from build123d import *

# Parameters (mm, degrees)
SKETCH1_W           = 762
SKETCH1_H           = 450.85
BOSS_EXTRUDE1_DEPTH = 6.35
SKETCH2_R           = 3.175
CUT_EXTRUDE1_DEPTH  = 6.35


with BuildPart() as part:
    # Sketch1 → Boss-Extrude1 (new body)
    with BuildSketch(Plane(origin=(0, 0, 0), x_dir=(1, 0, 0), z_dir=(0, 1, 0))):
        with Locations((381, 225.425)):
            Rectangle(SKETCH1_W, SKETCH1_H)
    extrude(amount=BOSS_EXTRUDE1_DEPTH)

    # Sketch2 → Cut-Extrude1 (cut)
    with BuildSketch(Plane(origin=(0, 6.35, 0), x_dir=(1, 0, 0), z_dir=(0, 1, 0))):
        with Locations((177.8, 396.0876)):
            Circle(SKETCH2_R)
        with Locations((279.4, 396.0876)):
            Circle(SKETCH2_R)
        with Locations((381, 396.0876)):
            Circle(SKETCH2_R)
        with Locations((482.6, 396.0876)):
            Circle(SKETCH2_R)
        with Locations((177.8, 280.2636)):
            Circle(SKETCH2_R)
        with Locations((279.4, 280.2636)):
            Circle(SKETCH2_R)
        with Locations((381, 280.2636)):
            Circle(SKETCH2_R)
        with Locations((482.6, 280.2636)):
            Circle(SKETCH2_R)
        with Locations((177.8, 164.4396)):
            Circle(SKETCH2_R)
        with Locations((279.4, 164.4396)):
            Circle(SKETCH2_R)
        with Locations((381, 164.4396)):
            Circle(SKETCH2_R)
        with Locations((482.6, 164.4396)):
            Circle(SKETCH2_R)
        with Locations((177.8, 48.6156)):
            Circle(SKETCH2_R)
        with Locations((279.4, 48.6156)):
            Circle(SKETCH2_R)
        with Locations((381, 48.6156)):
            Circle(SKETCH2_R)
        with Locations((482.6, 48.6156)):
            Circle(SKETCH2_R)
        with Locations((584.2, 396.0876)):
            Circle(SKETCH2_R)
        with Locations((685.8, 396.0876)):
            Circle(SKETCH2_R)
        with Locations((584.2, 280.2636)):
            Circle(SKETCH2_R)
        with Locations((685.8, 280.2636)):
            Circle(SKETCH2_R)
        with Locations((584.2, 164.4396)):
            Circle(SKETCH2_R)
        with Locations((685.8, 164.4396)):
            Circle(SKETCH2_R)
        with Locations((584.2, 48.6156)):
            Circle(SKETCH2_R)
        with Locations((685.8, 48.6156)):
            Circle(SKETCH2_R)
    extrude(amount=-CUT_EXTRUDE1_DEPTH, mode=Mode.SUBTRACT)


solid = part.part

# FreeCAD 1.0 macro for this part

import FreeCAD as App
import Part
import Sketcher
Q = App.Units.Quantity

doc = App.newDocument("Part")
params = doc.addObject("Spreadsheet::Sheet", "Params")
for row, (alias, value) in enumerate([
    ("sketch1_width", "30 in"),
    ("sketch1_height", "17.75 in"),
    ("pad1_length", "0.25 in"),
    ("sketch2_diameter", "0.25 in"),
    ("pocket1_length", "0.25 in"),
], start=1):
    params.set(f"A{row}", alias)
    params.set(f"B{row}", "=" + value)
    params.setAlias(f"B{row}", alias)

body = doc.addObject("PartDesign::Body", "Body")

sketch1 = doc.addObject("Sketcher::SketchObject", "Sketch")
body.addObject(sketch1)
sketch1.AttachmentSupport = (doc.XZ_Plane, [""])
sketch1.MapMode = "FlatFace"
sketch1.addGeometry([
    Part.LineSegment(App.Vector(0, -451, 0), App.Vector(0, 0, 0)),
    Part.LineSegment(App.Vector(0, 0, 0), App.Vector(762, 0, 0)),
    Part.LineSegment(App.Vector(762, 0, 0), App.Vector(762, -451, 0)),
    Part.LineSegment(App.Vector(762, -451, 0), App.Vector(0, -451, 0)),
], False)
sketch1.addConstraint([
    Sketcher.Constraint("Coincident", 0, 2, 1, 1),
    Sketcher.Constraint("Coincident", 1, 2, 2, 1),
    Sketcher.Constraint("Coincident", 2, 2, 3, 1),
    Sketcher.Constraint("Coincident", 3, 2, 0, 1),
    Sketcher.Constraint("Vertical", 0),
    Sketcher.Constraint("Horizontal", 1),
    Sketcher.Constraint("Vertical", 2),
    Sketcher.Constraint("Horizontal", 3),
    Sketcher.Constraint("Coincident", 0, 2, -1, 1),
    Sketcher.Constraint("DistanceX", 1, 1, 1, 2, Q("30 in")),
    Sketcher.Constraint("DistanceY", 0, 1, 0, 2, Q("17.75 in")),
])
sketch1.setExpression("Constraints[9]", "Params.sketch1_width")
sketch1.setExpression("Constraints[10]", "Params.sketch1_height")
pad1 = doc.addObject("PartDesign::Pad", "Pad")
body.addObject(pad1)
pad1.Profile = sketch1
pad1.setExpression("Length", "Params.pad1_length")
pad1.Reversed = True

sketch2 = doc.addObject("Sketcher::SketchObject", "Sketch001")
body.addObject(sketch2)
sketch2.AttachmentSupport = (doc.XZ_Plane, [""])
sketch2.MapMode = "FlatFace"
sketch2.AttachmentOffset = App.Placement(App.Vector(0, 0, -0.25 * 25.4), App.Rotation())
sketch2.addGeometry([
    Part.Circle(App.Vector(177.8, -396.1, 0), App.Vector(0, 0, 1), 3.2),
    Part.Circle(App.Vector(279.4, -396.1, 0), App.Vector(0, 0, 1), 3.2),
    Part.Circle(App.Vector(381, -396.1, 0), App.Vector(0, 0, 1), 3.2),
    Part.Circle(App.Vector(482.6, -396.1, 0), App.Vector(0, 0, 1), 3.2),
    Part.Circle(App.Vector(177.8, -280.3, 0), App.Vector(0, 0, 1), 3.2),
    Part.Circle(App.Vector(279.4, -280.3, 0), App.Vector(0, 0, 1), 3.2),
    Part.Circle(App.Vector(381, -280.3, 0), App.Vector(0, 0, 1), 3.2),
    Part.Circle(App.Vector(482.6, -280.3, 0), App.Vector(0, 0, 1), 3.2),
    Part.Circle(App.Vector(177.8, -164.4, 0), App.Vector(0, 0, 1), 3.2),
    Part.Circle(App.Vector(279.4, -164.4, 0), App.Vector(0, 0, 1), 3.2),
    Part.Circle(App.Vector(381, -164.4, 0), App.Vector(0, 0, 1), 3.2),
    Part.Circle(App.Vector(482.6, -164.4, 0), App.Vector(0, 0, 1), 3.2),
    Part.Circle(App.Vector(177.8, -48.6, 0), App.Vector(0, 0, 1), 3.2),
    Part.Circle(App.Vector(279.4, -48.6, 0), App.Vector(0, 0, 1), 3.2),
    Part.Circle(App.Vector(381, -48.6, 0), App.Vector(0, 0, 1), 3.2),
    Part.Circle(App.Vector(482.6, -48.6, 0), App.Vector(0, 0, 1), 3.2),
    Part.Circle(App.Vector(584.2, -396.1, 0), App.Vector(0, 0, 1), 3.2),
    Part.Circle(App.Vector(685.8, -396.1, 0), App.Vector(0, 0, 1), 3.2),
    Part.Circle(App.Vector(584.2, -280.3, 0), App.Vector(0, 0, 1), 3.2),
    Part.Circle(App.Vector(685.8, -280.3, 0), App.Vector(0, 0, 1), 3.2),
    Part.Circle(App.Vector(584.2, -164.4, 0), App.Vector(0, 0, 1), 3.2),
    Part.Circle(App.Vector(685.8, -164.4, 0), App.Vector(0, 0, 1), 3.2),
    Part.Circle(App.Vector(584.2, -48.6, 0), App.Vector(0, 0, 1), 3.2),
    Part.Circle(App.Vector(685.8, -48.6, 0), App.Vector(0, 0, 1), 3.2),
], False)
sketch2.addConstraint([
    Sketcher.Constraint("Equal", 0, 1),
    Sketcher.Constraint("Equal", 1, 2),
    Sketcher.Constraint("Equal", 2, 3),
    Sketcher.Constraint("Equal", 3, 4),
    Sketcher.Constraint("Equal", 4, 5),
    Sketcher.Constraint("Equal", 5, 6),
    Sketcher.Constraint("Equal", 6, 7),
    Sketcher.Constraint("Equal", 7, 8),
    Sketcher.Constraint("Equal", 8, 9),
    Sketcher.Constraint("Equal", 9, 10),
    Sketcher.Constraint("Equal", 10, 11),
    Sketcher.Constraint("Equal", 11, 12),
    Sketcher.Constraint("Equal", 12, 13),
    Sketcher.Constraint("Equal", 13, 14),
    Sketcher.Constraint("Equal", 14, 15),
    Sketcher.Constraint("Equal", 15, 16),
    Sketcher.Constraint("Equal", 16, 17),
    Sketcher.Constraint("Equal", 17, 18),
    Sketcher.Constraint("Equal", 18, 19),
    Sketcher.Constraint("Equal", 19, 20),
    Sketcher.Constraint("Equal", 20, 21),
    Sketcher.Constraint("Equal", 21, 22),
    Sketcher.Constraint("Equal", 22, 23),
    Sketcher.Constraint("Horizontal", 0, 3, 1, 3),
    Sketcher.Constraint("Horizontal", 1, 3, 2, 3),
    Sketcher.Constraint("Horizontal", 2, 3, 3, 3),
    Sketcher.Constraint("Horizontal", 4, 3, 5, 3),
    Sketcher.Constraint("Horizontal", 5, 3, 6, 3),
    Sketcher.Constraint("Horizontal", 6, 3, 7, 3),
    Sketcher.Constraint("Horizontal", 8, 3, 9, 3),
    Sketcher.Constraint("Horizontal", 9, 3, 10, 3),
    Sketcher.Constraint("Horizontal", 10, 3, 11, 3),
    Sketcher.Constraint("Horizontal", 12, 3, 13, 3),
    Sketcher.Constraint("Horizontal", 13, 3, 14, 3),
    Sketcher.Constraint("Horizontal", 14, 3, 15, 3),
    Sketcher.Constraint("Horizontal", 3, 3, 16, 3),
    Sketcher.Constraint("Horizontal", 16, 3, 17, 3),
    Sketcher.Constraint("Horizontal", 7, 3, 18, 3),
    Sketcher.Constraint("Horizontal", 18, 3, 19, 3),
    Sketcher.Constraint("Horizontal", 11, 3, 20, 3),
    Sketcher.Constraint("Horizontal", 20, 3, 21, 3),
    Sketcher.Constraint("Horizontal", 15, 3, 22, 3),
    Sketcher.Constraint("Horizontal", 22, 3, 23, 3),
    Sketcher.Constraint("Vertical", 0, 3, 4, 3),
    Sketcher.Constraint("Vertical", 1, 3, 5, 3),
    Sketcher.Constraint("Vertical", 2, 3, 6, 3),
    Sketcher.Constraint("Vertical", 3, 3, 7, 3),
    Sketcher.Constraint("Vertical", 4, 3, 8, 3),
    Sketcher.Constraint("Vertical", 5, 3, 9, 3),
    Sketcher.Constraint("Vertical", 6, 3, 10, 3),
    Sketcher.Constraint("Vertical", 7, 3, 11, 3),
    Sketcher.Constraint("Vertical", 8, 3, 12, 3),
    Sketcher.Constraint("Vertical", 9, 3, 13, 3),
    Sketcher.Constraint("Vertical", 10, 3, 14, 3),
    Sketcher.Constraint("Vertical", 11, 3, 15, 3),
    Sketcher.Constraint("Vertical", 16, 3, 18, 3),
    Sketcher.Constraint("Vertical", 17, 3, 19, 3),
    Sketcher.Constraint("Vertical", 18, 3, 20, 3),
    Sketcher.Constraint("Vertical", 19, 3, 21, 3),
    Sketcher.Constraint("Vertical", 20, 3, 22, 3),
    Sketcher.Constraint("Vertical", 21, 3, 23, 3),
    Sketcher.Constraint("Diameter", 0, Q("0.25 in")),
    Sketcher.Constraint("DistanceX", -1, 1, 0, 3, Q("7 in")),
    Sketcher.Constraint("DistanceX", -1, 1, 1, 3, Q("11 in")),
    Sketcher.Constraint("DistanceX", -1, 1, 2, 3, Q("15 in")),
    Sketcher.Constraint("DistanceX", -1, 1, 3, 3, Q("19 in")),
    Sketcher.Constraint("DistanceX", -1, 1, 16, 3, Q("23 in")),
    Sketcher.Constraint("DistanceX", -1, 1, 17, 3, Q("27 in")),
    Sketcher.Constraint("DistanceY", 0, 3, 4, 3, Q("4.56 in")),
    Sketcher.Constraint("DistanceY", 4, 3, 8, 3, Q("4.56 in")),
    Sketcher.Constraint("DistanceY", 8, 3, 12, 3, Q("4.56 in")),
    Sketcher.Constraint("DistanceY", 0, 3, -1, 1, Q("15.594 in")),
])
sketch2.setExpression("Constraints[61]", "Params.sketch2_diameter")
pocket1 = doc.addObject("PartDesign::Pocket", "Pocket")
body.addObject(pocket1)
pocket1.Profile = sketch2
pocket1.setExpression("Length", "Params.pocket1_length")
pocket1.Reversed = True

doc.recompute()
